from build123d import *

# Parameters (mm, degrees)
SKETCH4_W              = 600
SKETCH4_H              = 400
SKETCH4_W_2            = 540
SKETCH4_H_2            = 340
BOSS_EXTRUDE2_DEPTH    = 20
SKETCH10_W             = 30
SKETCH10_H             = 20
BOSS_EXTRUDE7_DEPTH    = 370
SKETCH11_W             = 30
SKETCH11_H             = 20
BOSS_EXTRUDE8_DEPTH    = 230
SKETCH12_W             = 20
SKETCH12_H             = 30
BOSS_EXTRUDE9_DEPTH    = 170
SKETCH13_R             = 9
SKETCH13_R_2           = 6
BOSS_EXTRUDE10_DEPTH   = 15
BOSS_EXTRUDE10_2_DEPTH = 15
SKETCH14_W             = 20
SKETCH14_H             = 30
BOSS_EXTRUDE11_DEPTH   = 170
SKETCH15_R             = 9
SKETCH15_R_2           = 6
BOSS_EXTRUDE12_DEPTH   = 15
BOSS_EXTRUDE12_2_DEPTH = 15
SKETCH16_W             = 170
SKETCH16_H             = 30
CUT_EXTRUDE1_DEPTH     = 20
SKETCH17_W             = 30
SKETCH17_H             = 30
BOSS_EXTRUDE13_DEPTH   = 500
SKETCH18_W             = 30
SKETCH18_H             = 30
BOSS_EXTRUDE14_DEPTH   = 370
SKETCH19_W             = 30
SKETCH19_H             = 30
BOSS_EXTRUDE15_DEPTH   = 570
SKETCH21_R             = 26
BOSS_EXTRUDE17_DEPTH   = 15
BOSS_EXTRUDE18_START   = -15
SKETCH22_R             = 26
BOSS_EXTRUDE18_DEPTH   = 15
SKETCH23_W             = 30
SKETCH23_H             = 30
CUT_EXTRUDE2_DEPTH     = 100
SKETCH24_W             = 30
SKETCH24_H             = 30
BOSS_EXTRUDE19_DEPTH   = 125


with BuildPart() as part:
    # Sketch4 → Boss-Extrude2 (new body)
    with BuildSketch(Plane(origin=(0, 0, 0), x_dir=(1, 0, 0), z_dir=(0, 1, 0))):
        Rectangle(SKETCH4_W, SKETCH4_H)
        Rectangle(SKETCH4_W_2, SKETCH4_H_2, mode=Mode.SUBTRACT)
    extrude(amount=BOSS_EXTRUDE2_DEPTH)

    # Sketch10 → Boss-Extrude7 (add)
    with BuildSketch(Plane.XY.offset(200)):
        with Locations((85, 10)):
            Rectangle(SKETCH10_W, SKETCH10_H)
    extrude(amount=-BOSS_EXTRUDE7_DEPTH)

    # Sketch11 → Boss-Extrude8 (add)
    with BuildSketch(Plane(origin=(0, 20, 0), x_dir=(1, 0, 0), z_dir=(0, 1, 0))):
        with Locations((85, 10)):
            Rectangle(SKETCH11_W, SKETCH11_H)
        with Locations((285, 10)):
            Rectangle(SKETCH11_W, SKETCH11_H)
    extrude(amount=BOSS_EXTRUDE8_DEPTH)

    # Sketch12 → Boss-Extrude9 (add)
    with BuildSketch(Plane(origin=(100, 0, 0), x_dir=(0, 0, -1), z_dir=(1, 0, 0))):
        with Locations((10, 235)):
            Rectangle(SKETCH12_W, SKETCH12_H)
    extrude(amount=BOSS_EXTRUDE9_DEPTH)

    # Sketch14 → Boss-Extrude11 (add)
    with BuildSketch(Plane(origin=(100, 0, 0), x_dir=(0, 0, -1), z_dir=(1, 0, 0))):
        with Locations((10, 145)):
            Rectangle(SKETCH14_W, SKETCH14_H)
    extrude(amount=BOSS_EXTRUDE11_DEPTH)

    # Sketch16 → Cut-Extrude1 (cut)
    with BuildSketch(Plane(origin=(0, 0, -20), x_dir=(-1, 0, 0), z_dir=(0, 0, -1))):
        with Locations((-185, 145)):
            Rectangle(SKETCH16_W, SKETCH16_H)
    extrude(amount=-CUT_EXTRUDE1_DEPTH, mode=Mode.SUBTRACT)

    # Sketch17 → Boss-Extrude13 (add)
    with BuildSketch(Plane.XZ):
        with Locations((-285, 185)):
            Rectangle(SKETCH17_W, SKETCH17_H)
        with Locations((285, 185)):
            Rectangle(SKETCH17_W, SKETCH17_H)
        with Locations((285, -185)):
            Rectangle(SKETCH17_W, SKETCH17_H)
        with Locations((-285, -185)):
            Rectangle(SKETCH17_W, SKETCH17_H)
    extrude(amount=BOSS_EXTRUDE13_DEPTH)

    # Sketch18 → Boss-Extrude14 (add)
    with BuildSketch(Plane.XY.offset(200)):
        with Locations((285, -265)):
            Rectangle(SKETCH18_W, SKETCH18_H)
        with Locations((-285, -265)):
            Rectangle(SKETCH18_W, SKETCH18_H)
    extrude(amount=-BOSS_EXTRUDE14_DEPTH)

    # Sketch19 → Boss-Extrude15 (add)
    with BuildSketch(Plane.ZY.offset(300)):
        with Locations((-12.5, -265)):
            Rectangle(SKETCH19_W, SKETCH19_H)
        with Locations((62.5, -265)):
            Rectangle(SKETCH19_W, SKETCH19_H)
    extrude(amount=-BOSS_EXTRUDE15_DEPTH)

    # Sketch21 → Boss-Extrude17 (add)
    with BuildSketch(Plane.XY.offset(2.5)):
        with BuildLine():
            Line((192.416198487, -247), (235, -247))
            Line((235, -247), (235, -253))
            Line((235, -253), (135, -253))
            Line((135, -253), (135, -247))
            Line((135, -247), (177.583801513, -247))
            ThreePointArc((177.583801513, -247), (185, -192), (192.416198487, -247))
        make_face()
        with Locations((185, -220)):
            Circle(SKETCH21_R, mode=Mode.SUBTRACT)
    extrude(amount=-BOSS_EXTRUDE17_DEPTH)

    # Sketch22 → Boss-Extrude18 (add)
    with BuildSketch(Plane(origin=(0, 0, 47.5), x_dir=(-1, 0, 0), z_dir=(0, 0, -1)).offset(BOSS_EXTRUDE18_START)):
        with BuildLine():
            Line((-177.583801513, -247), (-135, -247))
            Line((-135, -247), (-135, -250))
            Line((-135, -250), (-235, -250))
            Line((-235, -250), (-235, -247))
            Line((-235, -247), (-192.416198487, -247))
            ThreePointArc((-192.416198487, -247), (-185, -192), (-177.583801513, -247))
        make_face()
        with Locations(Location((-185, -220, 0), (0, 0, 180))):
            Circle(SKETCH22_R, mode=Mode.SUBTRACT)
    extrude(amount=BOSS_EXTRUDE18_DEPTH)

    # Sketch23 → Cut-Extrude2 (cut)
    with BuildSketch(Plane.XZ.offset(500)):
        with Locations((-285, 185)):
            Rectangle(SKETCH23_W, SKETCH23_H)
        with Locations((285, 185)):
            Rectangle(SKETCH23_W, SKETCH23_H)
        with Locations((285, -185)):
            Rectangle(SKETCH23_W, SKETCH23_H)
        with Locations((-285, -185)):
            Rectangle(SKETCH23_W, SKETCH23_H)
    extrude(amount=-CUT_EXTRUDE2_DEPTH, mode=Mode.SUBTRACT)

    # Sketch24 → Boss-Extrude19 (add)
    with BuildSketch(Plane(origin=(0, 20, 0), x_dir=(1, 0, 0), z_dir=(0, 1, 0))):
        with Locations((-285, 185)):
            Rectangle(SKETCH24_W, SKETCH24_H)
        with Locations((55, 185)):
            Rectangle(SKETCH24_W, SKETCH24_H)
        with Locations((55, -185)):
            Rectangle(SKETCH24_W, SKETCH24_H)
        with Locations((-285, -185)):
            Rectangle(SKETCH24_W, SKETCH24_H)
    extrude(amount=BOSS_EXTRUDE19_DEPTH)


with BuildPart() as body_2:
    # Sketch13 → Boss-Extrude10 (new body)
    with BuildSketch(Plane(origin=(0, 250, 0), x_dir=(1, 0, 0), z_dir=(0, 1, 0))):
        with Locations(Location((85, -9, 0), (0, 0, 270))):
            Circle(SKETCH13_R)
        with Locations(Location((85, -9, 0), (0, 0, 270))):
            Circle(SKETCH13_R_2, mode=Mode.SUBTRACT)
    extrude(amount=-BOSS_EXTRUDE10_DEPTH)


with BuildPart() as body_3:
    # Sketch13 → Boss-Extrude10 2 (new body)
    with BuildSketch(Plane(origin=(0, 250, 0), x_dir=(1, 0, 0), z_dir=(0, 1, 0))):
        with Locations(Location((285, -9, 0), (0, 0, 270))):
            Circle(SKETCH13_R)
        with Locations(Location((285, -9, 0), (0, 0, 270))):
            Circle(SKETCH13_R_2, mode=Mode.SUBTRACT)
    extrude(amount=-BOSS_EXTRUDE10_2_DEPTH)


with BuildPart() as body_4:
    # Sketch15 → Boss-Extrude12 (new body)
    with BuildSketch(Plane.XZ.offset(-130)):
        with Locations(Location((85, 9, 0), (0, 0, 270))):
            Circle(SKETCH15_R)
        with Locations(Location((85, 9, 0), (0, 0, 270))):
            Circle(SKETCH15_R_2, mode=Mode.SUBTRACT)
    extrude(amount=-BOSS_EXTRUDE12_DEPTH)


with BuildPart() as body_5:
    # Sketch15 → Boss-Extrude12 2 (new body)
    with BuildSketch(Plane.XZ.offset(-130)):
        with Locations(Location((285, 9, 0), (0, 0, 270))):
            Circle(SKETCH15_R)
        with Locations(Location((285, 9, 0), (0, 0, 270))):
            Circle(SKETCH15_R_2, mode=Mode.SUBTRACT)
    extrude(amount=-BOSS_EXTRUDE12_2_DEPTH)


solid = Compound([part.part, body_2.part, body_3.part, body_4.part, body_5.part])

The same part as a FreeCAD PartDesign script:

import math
import FreeCAD as App
import Part
import Sketcher
Q = App.Units.Quantity


def add_polygon(sketch, points):
    """Adds a closed chain of lines whose ends are joined by coincident constraints."""
    first, n = sketch.GeometryCount, len(points)
    for a, b in zip(points, points[1:] + points[:1]):
        sketch.addGeometry(Part.LineSegment(App.Vector(*a, 0), App.Vector(*b, 0)), False)
    for i in range(n):
        sketch.addConstraint(Sketcher.Constraint("Coincident", first + i, 2, first + (i + 1) % n, 1))

doc = App.newDocument("Part")
body = doc.addObject("PartDesign::Body", "Body")

# Sketch on XZ plane
sketch1 = body.newObject("Sketcher::SketchObject", "Sketch")
sketch1.AttachmentSupport = (doc.getObject("XZ_Plane"), [""])
sketch1.MapMode = "FlatFace"
add_polygon(sketch1, [(-300, -200), (-300, 200), (300, 200), (300, -200)])  # lines 0-3
add_polygon(sketch1, [(270, 170), (-270, 170), (-270, -170), (270, -170)])  # lines 4-7
sketch1.addConstraint([
    Sketcher.Constraint("Vertical", 0),
    Sketcher.Constraint("Horizontal", 1),
    Sketcher.Constraint("Vertical", 2),
    Sketcher.Constraint("Horizontal", 3),
    Sketcher.Constraint("Horizontal", 4),
    Sketcher.Constraint("Vertical", 5),
    Sketcher.Constraint("Horizontal", 6),
    Sketcher.Constraint("Vertical", 7),
    Sketcher.Constraint("Symmetric", 0, 2, 2, 2, -1, 1),
    Sketcher.Constraint("Symmetric", 4, 2, 6, 2, -1, 1),
    Sketcher.Constraint("DistanceX", 1, 1, 1, 2, Q("600 mm")),
    Sketcher.Constraint("DistanceX", 4, 2, 4, 1, Q("540 mm")),
    Sketcher.Constraint("DistanceY", 0, 1, 0, 2, Q("400 mm")),
    Sketcher.Constraint("DistanceY", 5, 2, 5, 1, Q("340 mm")),
])
pad1 = body.newObject("PartDesign::Pad", "Pad")
pad1.Profile = sketch1
pad1.Length = 20
pad1.Reversed = True

# Sketch on XY plane
sketch2 = body.newObject("Sketcher::SketchObject", "Sketch001")
sketch2.AttachmentSupport = (doc.getObject("XY_Plane"), [""])
sketch2.MapMode = "FlatFace"
sketch2.AttachmentOffset = App.Placement(App.Vector(0, 0, 200), App.Rotation())
add_polygon(sketch2, [(70, 20), (70, 0), (100, 0), (100, 20)])  # lines 0-3
sketch2.addConstraint([
    Sketcher.Constraint("Vertical", 0),
    Sketcher.Constraint("Horizontal", 1),
    Sketcher.Constraint("Vertical", 2),
    Sketcher.Constraint("Horizontal", 3),
    Sketcher.Constraint("PointOnObject", 0, 2, -1),
    Sketcher.Constraint("DistanceX", 1, 1, 1, 2, Q("30 mm")),
    Sketcher.Constraint("DistanceY", 0, 2, 0, 1, Q("20 mm")),
    Sketcher.Constraint("DistanceX", -1, 1, 0, 2, Q("70 mm")),
])
pad2 = body.newObject("PartDesign::Pad", "Pad001")
pad2.Profile = sketch2
pad2.Length = 370
pad2.Reversed = True

# Sketch on XZ plane
sketch3 = body.newObject("Sketcher::SketchObject", "Sketch002")
sketch3.AttachmentSupport = (doc.getObject("XZ_Plane"), [""])
sketch3.MapMode = "FlatFace"
sketch3.AttachmentOffset = App.Placement(App.Vector(0, 0, -20), App.Rotation())
add_polygon(sketch3, [(70, -20), (70, 0), (100, 0), (100, -20)])  # lines 0-3
add_polygon(sketch3, [(270, -20), (270, 0), (300, 0), (300, -20)])  # lines 4-7
sketch3.addConstraint([
    Sketcher.Constraint("Vertical", 0),
    Sketcher.Constraint("Horizontal", 1),
    Sketcher.Constraint("Vertical", 2),
    Sketcher.Constraint("Horizontal", 3),
    Sketcher.Constraint("Vertical", 4),
    Sketcher.Constraint("Horizontal", 5),
    Sketcher.Constraint("Vertical", 6),
    Sketcher.Constraint("Horizontal", 7),
    Sketcher.Constraint("PointOnObject", 0, 2, -1),
    Sketcher.Constraint("PointOnObject", 4, 2, -1),
    Sketcher.Constraint("Horizontal", 3, 2, 6, 2),
    Sketcher.Constraint("Equal", 3, 5),
    Sketcher.Constraint("DistanceX", 1, 1, 1, 2, Q("30 mm")),
    Sketcher.Constraint("DistanceY", 0, 1, 0, 2, Q("20 mm")),
    Sketcher.Constraint("DistanceX", -1, 1, 0, 2, Q("70 mm")),
    Sketcher.Constraint("DistanceX", -1, 1, 4, 2, Q("270 mm")),
])
pad3 = body.newObject("PartDesign::Pad", "Pad002")
pad3.Profile = sketch3
pad3.Length = 230
pad3.Reversed = True

# Sketch on YZ plane
sketch4 = body.newObject("Sketcher::SketchObject", "Sketch003")
sketch4.AttachmentSupport = (doc.getObject("YZ_Plane"), [""])
sketch4.MapMode = "FlatFace"
sketch4.AttachmentOffset = App.Placement(App.Vector(0, 0, 100), App.Rotation())
add_polygon(sketch4, [(250, 0), (220, 0), (220, -20), (250, -20)])  # lines 0-3
sketch4.addConstraint([
    Sketcher.Constraint("Horizontal", 0),
    Sketcher.Constraint("Vertical", 1),
    Sketcher.Constraint("Horizontal", 2),
    Sketcher.Constraint("Vertical", 3),
    Sketcher.Constraint("PointOnObject", 0, 2, -1),
    Sketcher.Constraint("DistanceX", 0, 2, 0, 1, Q("30 mm")),
    Sketcher.Constraint("DistanceY", 1, 2, 1, 1, Q("20 mm")),
    Sketcher.Constraint("DistanceX", -1, 1, 0, 2, Q("220 mm")),
])
pad4 = body.newObject("PartDesign::Pad", "Pad003")
pad4.Profile = sketch4
pad4.Length = 170

# Sketch on YZ plane
sketch5 = body.newObject("Sketcher::SketchObject", "Sketch004")
sketch5.AttachmentSupport = (doc.getObject("YZ_Plane"), [""])
sketch5.MapMode = "FlatFace"
sketch5.AttachmentOffset = App.Placement(App.Vector(0, 0, 100), App.Rotation())
add_polygon(sketch5, [(160, 0), (130, 0), (130, -20), (160, -20)])  # lines 0-3
sketch5.addConstraint([
    Sketcher.Constraint("Horizontal", 0),
    Sketcher.Constraint("Vertical", 1),
    Sketcher.Constraint("Horizontal", 2),
    Sketcher.Constraint("Vertical", 3),
    Sketcher.Constraint("PointOnObject", 0, 2, -1),
    Sketcher.Constraint("DistanceX", 0, 2, 0, 1, Q("30 mm")),
    Sketcher.Constraint("DistanceY", 1, 2, 1, 1, Q("20 mm")),
    Sketcher.Constraint("DistanceX", -1, 1, 0, 2, Q("130 mm")),
])
pad5 = body.newObject("PartDesign::Pad", "Pad004")
pad5.Profile = sketch5
pad5.Length = 170

# Sketch on XY plane
sketch6 = body.newObject("Sketcher::SketchObject", "Sketch005")
sketch6.AttachmentSupport = (doc.getObject("XY_Plane"), [""])
sketch6.MapMode = "FlatFace"
sketch6.AttachmentOffset = App.Placement(App.Vector(0, 0, -20), App.Rotation())
add_polygon(sketch6, [(270, 160), (270, 130), (100, 130), (100, 160)])  # lines 0-3
sketch6.addConstraint([
    Sketcher.Constraint("Vertical", 0),
    Sketcher.Constraint("Horizontal", 1),
    Sketcher.Constraint("Vertical", 2),
    Sketcher.Constraint("Horizontal", 3),
    Sketcher.Constraint("DistanceX", 1, 2, 1, 1, Q("170 mm")),
    Sketcher.Constraint("DistanceY", 0, 2, 0, 1, Q("30 mm")),
    Sketcher.Constraint("DistanceX", -1, 1, 0, 2, Q("270 mm")),
    Sketcher.Constraint("DistanceY", -1, 1, 0, 2, Q("130 mm")),
])
pocket1 = body.newObject("PartDesign::Pocket", "Pocket")
pocket1.Profile = sketch6
pocket1.Length = 20
pocket1.Reversed = True

# Sketch on XZ plane
sketch7 = body.newObject("Sketcher::SketchObject", "Sketch006")
sketch7.AttachmentSupport = (doc.getObject("XZ_Plane"), [""])
sketch7.MapMode = "FlatFace"
add_polygon(sketch7, [(-300, 200), (-300, 170), (-270, 170), (-270, 200)])  # lines 0-3
add_polygon(sketch7, [(270, 200), (270, 170), (300, 170), (300, 200)])  # lines 4-7
add_polygon(sketch7, [(270, -170), (270, -200), (300, -200), (300, -170)])  # lines 8-11
add_polygon(sketch7, [(-300, -170), (-300, -200), (-270, -200), (-270, -170)])  # lines 12-15
sketch7.addConstraint([
    Sketcher.Constraint("Vertical", 0),
    Sketcher.Constraint("Horizontal", 1),
    Sketcher.Constraint("Vertical", 2),
    Sketcher.Constraint("Horizontal", 3),
    Sketcher.Constraint("Vertical", 4),
    Sketcher.Constraint("Horizontal", 5),
    Sketcher.Constraint("Vertical", 6),
    Sketcher.Constraint("Horizontal", 7),
    Sketcher.Constraint("Vertical", 8),
    Sketcher.Constraint("Horizontal", 9),
    Sketcher.Constraint("Vertical", 10),
    Sketcher.Constraint("Horizontal", 11),
    Sketcher.Constraint("Vertical", 12),
    Sketcher.Constraint("Horizontal", 13),
    Sketcher.Constraint("Vertical", 14),
    Sketcher.Constraint("Horizontal", 15),
    Sketcher.Constraint("Symmetric", 2, 2, 8, 2, -1, 1),
    Sketcher.Constraint("Symmetric", 0, 2, 10, 2, -1, 1),
    Sketcher.Constraint("Symmetric", 6, 2, 12, 2, -1, 1),
    Sketcher.Constraint("Symmetric", 4, 2, 14, 2, -1, 1),
    Sketcher.Constraint("Symmetric", 1, 2, 4, 2, -2),
    Sketcher.Constraint("Symmetric", 3, 2, 6, 2, -2),
    Sketcher.Constraint("Equal", 15, 0),
    Sketcher.Constraint("DistanceX", 1, 1, 1, 2, Q("30 mm")),
    Sketcher.Constraint("DistanceX", 0, 2, -1, 1, Q("300 mm")),
    Sketcher.Constraint("DistanceY", -1, 1, 0, 2, Q("170 mm")),
])
pad6 = body.newObject("PartDesign::Pad", "Pad005")
pad6.Profile = sketch7
pad6.Length = 500

# Sketch on XY plane
sketch8 = body.newObject("Sketcher::SketchObject", "Sketch007")
sketch8.AttachmentSupport = (doc.getObject("XY_Plane"), [""])
sketch8.MapMode = "FlatFace"
sketch8.AttachmentOffset = App.Placement(App.Vector(0, 0, 200), App.Rotation())
add_polygon(sketch8, [(270, -250), (270, -280), (300, -280), (300, -250)])  # lines 0-3
add_polygon(sketch8, [(-300, -250), (-300, -280), (-270, -280), (-270, -250)])  # lines 4-7
sketch8.addConstraint([
    Sketcher.Constraint("Vertical", 0),
    Sketcher.Constraint("Horizontal", 1),
    Sketcher.Constraint("Vertical", 2),
    Sketcher.Constraint("Horizontal", 3),
    Sketcher.Constraint("Vertical", 4),
    Sketcher.Constraint("Horizontal", 5),
    Sketcher.Constraint("Vertical", 6),
    Sketcher.Constraint("Horizontal", 7),
    Sketcher.Constraint("Symmetric", 1, 2, 4, 2, -2),
    Sketcher.Constraint("Symmetric", 3, 2, 6, 2, -2),
    Sketcher.Constraint("Equal", 7, 0),
    Sketcher.Constraint("DistanceX", 1, 1, 1, 2, Q("30 mm")),
    Sketcher.Constraint("DistanceX", -1, 1, 0, 2, Q("270 mm")),
    Sketcher.Constraint("DistanceY", 0, 2, -1, 1, Q("280 mm")),
])
pad7 = body.newObject("PartDesign::Pad", "Pad006")
pad7.Profile = sketch8
pad7.Length = 370
pad7.Reversed = True

# Sketch on YZ plane
sketch9 = body.newObject("Sketcher::SketchObject", "Sketch008")
sketch9.AttachmentSupport = (doc.getObject("YZ_Plane"), [""])
sketch9.MapMode = "FlatFace"
sketch9.AttachmentOffset = App.Placement(App.Vector(0, 0, -300), App.Rotation())
add_polygon(sketch9, [(-250, -28), (-280, -28), (-280, 2), (-250, 2)])  # lines 0-3
add_polygon(sketch9, [(-250, 48), (-280, 48), (-280, 78), (-250, 78)])  # lines 4-7
sketch9.addConstraint([
    Sketcher.Constraint("Horizontal", 0),
    Sketcher.Constraint("Vertical", 1),
    Sketcher.Constraint("Horizontal", 2),
    Sketcher.Constraint("Vertical", 3),
    Sketcher.Constraint("Horizontal", 4),
    Sketcher.Constraint("Vertical", 5),
    Sketcher.Constraint("Horizontal", 6),
    Sketcher.Constraint("Vertical", 7),
    Sketcher.Constraint("Vertical", 1, 2, 4, 2),
    Sketcher.Constraint("Vertical", 3, 2, 6, 2),
    Sketcher.Constraint("Equal", 6, 1),
    Sketcher.Constraint("Equal", 3, 5),
    Sketcher.Constraint("DistanceX", 0, 2, 0, 1, Q("30 mm")),
    Sketcher.Constraint("DistanceX", 0, 2, -1, 1, Q("280 mm")),
    Sketcher.Constraint("DistanceY", 1, 2, 4, 2, Q("45 mm")),
    Sketcher.Constraint("DistanceY", 0, 2, -1, 1, Q("27.5 mm")),
])
pad8 = body.newObject("PartDesign::Pad", "Pad007")
pad8.Profile = sketch9
pad8.Length = 570

# Sketch on XY plane
sketch10 = body.newObject("Sketcher::SketchObject", "Sketch009")
sketch10.AttachmentSupport = (doc.getObject("XY_Plane"), [""])
sketch10.MapMode = "FlatFace"
sketch10.AttachmentOffset = App.Placement(App.Vector(0, 0, 2.5), App.Rotation())
sketch10.addGeometry([
    Part.LineSegment(App.Vector(235, -247, 0), App.Vector(192, -247, 0)),  # 0
    Part.ArcOfCircle(Part.Circle(App.Vector(185, -220, 0), App.Vector(0, 0, 1), 28), math.radians(-75), math.radians(255)),  # 1
    Part.LineSegment(App.Vector(178, -247, 0), App.Vector(135, -247, 0)),  # 2
    Part.LineSegment(App.Vector(135, -247, 0), App.Vector(135, -253, 0)),  # 3
    Part.LineSegment(App.Vector(135, -253, 0), App.Vector(235, -253, 0)),  # 4
    Part.LineSegment(App.Vector(235, -253, 0), App.Vector(235, -247, 0)),  # 5
    Part.Circle(App.Vector(185, -220, 0), App.Vector(0, 0, 1), 26),  # 6
], False)
sketch10.addConstraint([
    Sketcher.Constraint("Coincident", 0, 2, 1, 1),
    Sketcher.Constraint("Coincident", 1, 2, 2, 1),
    Sketcher.Constraint("Coincident", 2, 2, 3, 1),
    Sketcher.Constraint("Coincident", 3, 2, 4, 1),
    Sketcher.Constraint("Coincident", 4, 2, 5, 1),
    Sketcher.Constraint("Coincident", 5, 2, 0, 1),
    Sketcher.Constraint("Horizontal", 0),
    Sketcher.Constraint("Horizontal", 2),
    Sketcher.Constraint("Vertical", 3),
    Sketcher.Constraint("Horizontal", 4),
    Sketcher.Constraint("Vertical", 5),
    Sketcher.Constraint("Coincident", 6, 3, 1, 3),
    Sketcher.Constraint("Horizontal", 0, 2, 1, 2),
    Sketcher.Constraint("Equal", 0, 2),
    Sketcher.Constraint("Diameter", 6, Q("52 mm")),
    Sketcher.Constraint("Radius", 1, Q("28 mm")),
    Sketcher.Constraint("DistanceX", 4, 1, 4, 2, Q("100 mm")),
    Sketcher.Constraint("DistanceY", 3, 2, 3, 1, Q("6 mm")),
    Sketcher.Constraint("DistanceX", -1, 1, 1, 3, Q("185 mm")),
    Sketcher.Constraint("DistanceY", 1, 3, -1, 1, Q("220 mm")),
    Sketcher.Constraint("DistanceY", 0, 2, -1, 1, Q("247 mm")),
])
pad9 = body.newObject("PartDesign::Pad", "Pad008")
pad9.Profile = sketch10
pad9.Length = 15
pad9.Reversed = True

# Sketch on XY plane
sketch11 = body.newObject("Sketcher::SketchObject", "Sketch010")
sketch11.AttachmentSupport = (doc.getObject("XY_Plane"), [""])
sketch11.MapMode = "FlatFace"
sketch11.AttachmentOffset = App.Placement(App.Vector(0, 0, 62.5), App.Rotation())
sketch11.addGeometry([
    Part.LineSegment(App.Vector(135, -247, 0), App.Vector(177.6, -247, 0)),  # 0
    Part.ArcOfCircle(Part.Circle(App.Vector(185, -220, 0), App.Vector(0, 0, 1), 28), math.radians(-75), math.radians(255)),  # 1
    Part.LineSegment(App.Vector(192.4, -247, 0), App.Vector(235, -247, 0)),  # 2
    Part.LineSegment(App.Vector(235, -247, 0), App.Vector(235, -250, 0)),  # 3
    Part.LineSegment(App.Vector(235, -250, 0), App.Vector(135, -250, 0)),  # 4
    Part.LineSegment(App.Vector(135, -250, 0), App.Vector(135, -247, 0)),  # 5
    Part.Circle(App.Vector(185, -220, 0), App.Vector(0, 0, 1), 26),  # 6
], False)
sketch11.addConstraint([
    Sketcher.Constraint("Coincident", 0, 2, 1, 2),
    Sketcher.Constraint("Coincident", 1, 1, 2, 1),
    Sketcher.Constraint("Coincident", 2, 2, 3, 1),
    Sketcher.Constraint("Coincident", 3, 2, 4, 1),
    Sketcher.Constraint("Coincident", 4, 2, 5, 1),
    Sketcher.Constraint("Coincident", 5, 2, 0, 1),
    Sketcher.Constraint("Horizontal", 0),
    Sketcher.Constraint("Horizontal", 2),
    Sketcher.Constraint("Vertical", 3),
    Sketcher.Constraint("Horizontal", 4),
    Sketcher.Constraint("Vertical", 5),
    Sketcher.Constraint("Coincident", 6, 3, 1, 3),
    Sketcher.Constraint("Horizontal", 0, 2, 1, 1),
    Sketcher.Constraint("Equal", 0, 2),
    Sketcher.Constraint("Diameter", 6, Q("52 mm")),
    Sketcher.Constraint("Radius", 1, Q("28 mm")),
    Sketcher.Constraint("DistanceX", 4, 2, 4, 1, Q("100 mm")),
    Sketcher.Constraint("DistanceY", 3, 2, 3, 1, Q("3 mm")),
    Sketcher.Constraint("DistanceX", -1, 1, 1, 3, Q("185 mm")),
    Sketcher.Constraint("DistanceY", 1, 3, -1, 1, Q("220 mm")),
    Sketcher.Constraint("DistanceY", 0, 2, -1, 1, Q("247 mm")),
])
pad10 = body.newObject("PartDesign::Pad", "Pad009")
pad10.Profile = sketch11
pad10.Length = 15
pad10.Reversed = True

# Sketch on XZ plane
sketch12 = body.newObject("Sketcher::SketchObject", "Sketch011")
sketch12.AttachmentSupport = (doc.getObject("XZ_Plane"), [""])
sketch12.MapMode = "FlatFace"
sketch12.AttachmentOffset = App.Placement(App.Vector(0, 0, 500), App.Rotation())
add_polygon(sketch12, [(-300, 200), (-300, 170), (-270, 170), (-270, 200)])  # lines 0-3
add_polygon(sketch12, [(270, 200), (270, 170), (300, 170), (300, 200)])  # lines 4-7
add_polygon(sketch12, [(270, -170), (270, -200), (300, -200), (300, -170)])  # lines 8-11
add_polygon(sketch12, [(-300, -170), (-300, -200), (-270, -200), (-270, -170)])  # lines 12-15
sketch12.addConstraint([
    Sketcher.Constraint("Vertical", 0),
    Sketcher.Constraint("Horizontal", 1),
    Sketcher.Constraint("Vertical", 2),
    Sketcher.Constraint("Horizontal", 3),
    Sketcher.Constraint("Vertical", 4),
    Sketcher.Constraint("Horizontal", 5),
    Sketcher.Constraint("Vertical", 6),
    Sketcher.Constraint("Horizontal", 7),
    Sketcher.Constraint("Vertical", 8),
    Sketcher.Constraint("Horizontal", 9),
    Sketcher.Constraint("Vertical", 10),
    Sketcher.Constraint("Horizontal", 11),
    Sketcher.Constraint("Vertical", 12),
    Sketcher.Constraint("Horizontal", 13),
    Sketcher.Constraint("Vertical", 14),
    Sketcher.Constraint("Horizontal", 15),
    Sketcher.Constraint("Symmetric", 2, 2, 8, 2, -1, 1),
    Sketcher.Constraint("Symmetric", 0, 2, 10, 2, -1, 1),
    Sketcher.Constraint("Symmetric", 6, 2, 12, 2, -1, 1),
    Sketcher.Constraint("Symmetric", 4, 2, 14, 2, -1, 1),
    Sketcher.Constraint("Symmetric", 1, 2, 4, 2, -2),
    Sketcher.Constraint("Symmetric", 3, 2, 6, 2, -2),
    Sketcher.Constraint("Equal", 15, 0),
    Sketcher.Constraint("DistanceX", 1, 1, 1, 2, Q("30 mm")),
    Sketcher.Constraint("DistanceX", 0, 2, -1, 1, Q("300 mm")),
    Sketcher.Constraint("DistanceY", -1, 1, 0, 2, Q("170 mm")),
])
pocket2 = body.newObject("PartDesign::Pocket", "Pocket001")
pocket2.Profile = sketch12
pocket2.Length = 100

# Sketch on XZ plane
sketch13 = body.newObject("Sketcher::SketchObject", "Sketch012")
sketch13.AttachmentSupport = (doc.getObject("XZ_Plane"), [""])
sketch13.MapMode = "FlatFace"
sketch13.AttachmentOffset = App.Placement(App.Vector(0, 0, -20), App.Rotation())
add_polygon(sketch13, [(-300, -200), (-300, -170), (-270, -170), (-270, -200)])  # lines 0-3
add_polygon(sketch13, [(40, -200), (40, -170), (70, -170), (70, -200)])  # lines 4-7
add_polygon(sketch13, [(40, 170), (40, 200), (70, 200), (70, 170)])  # lines 8-11
add_polygon(sketch13, [(-300, 170), (-300, 200), (-270, 200), (-270, 170)])  # lines 12-15
sketch13.addConstraint([
    Sketcher.Constraint("Vertical", 0),
    Sketcher.Constraint("Horizontal", 1),
    Sketcher.Constraint("Vertical", 2),
    Sketcher.Constraint("Horizontal", 3),
    Sketcher.Constraint("Vertical", 4),
    Sketcher.Constraint("Horizontal", 5),
    Sketcher.Constraint("Vertical", 6),
    Sketcher.Constraint("Horizontal", 7),
    Sketcher.Constraint("Vertical", 8),
    Sketcher.Constraint("Horizontal", 9),
    Sketcher.Constraint("Vertical", 10),
    Sketcher.Constraint("Horizontal", 11),
    Sketcher.Constraint("Vertical", 12),
    Sketcher.Constraint("Horizontal", 13),
    Sketcher.Constraint("Vertical", 14),
    Sketcher.Constraint("Horizontal", 15),
    Sketcher.Constraint("Symmetric", 7, 2, 8, 2, -1),
    Sketcher.Constraint("Symmetric", 5, 2, 10, 2, -1),
    Sketcher.Constraint("Symmetric", 3, 2, 12, 2, -1),
    Sketcher.Constraint("Symmetric", 1, 2, 14, 2, -1),
    Sketcher.Constraint("Horizontal", 1, 2, 4, 2),
    Sketcher.Constraint("Horizontal", 3, 2, 6, 2),
    Sketcher.Constraint("Equal", 3, 5),
    Sketcher.Constraint("Equal", 15, 0),
    Sketcher.Constraint("DistanceX", 1, 1, 1, 2, Q("30 mm")),
    Sketcher.Constraint("DistanceX", 0, 2, -1, 1, Q("300 mm")),
    Sketcher.Constraint("DistanceY", 0, 2, -1, 1, Q("170 mm")),
    Sketcher.Constraint("DistanceX", -1, 1, 4, 2, Q("40 mm")),
])
pad11 = body.newObject("PartDesign::Pad", "Pad010")
pad11.Profile = sketch13
pad11.Length = 125
pad11.Reversed = True
body2 = doc.addObject("PartDesign::Body", "Body001")

# Sketch on XZ plane
sketch14 = body2.newObject("Sketcher::SketchObject", "Sketch013")
sketch14.AttachmentSupport = (doc.getObject("XZ_Plane001"), [""])
sketch14.MapMode = "FlatFace"
sketch14.AttachmentOffset = App.Placement(App.Vector(0, 0, -250), App.Rotation())
sketch14.addGeometry([
    Part.Circle(App.Vector(85, 9, 0), App.Vector(0, 0, 1), 9),
    Part.Circle(App.Vector(85, 9, 0), App.Vector(0, 0, 1), 6),
], False)
sketch14.addConstraint([
    Sketcher.Constraint("Coincident", 1, 3, 0, 3),
    Sketcher.Constraint("Diameter", 0, Q("18 mm")),
    Sketcher.Constraint("Diameter", 1, Q("12 mm")),
    Sketcher.Constraint("DistanceX", -1, 1, 0, 3, Q("85 mm")),
    Sketcher.Constraint("DistanceY", -1, 1, 0, 3, Q("9 mm")),
])
pad12 = body2.newObject("PartDesign::Pad", "Pad011")
pad12.Profile = sketch14
pad12.Length = 15
body3 = doc.addObject("PartDesign::Body", "Body002")

# Sketch on XZ plane
sketch15 = body3.newObject("Sketcher::SketchObject", "Sketch014")
sketch15.AttachmentSupport = (doc.getObject("XZ_Plane002"), [""])
sketch15.MapMode = "FlatFace"
sketch15.AttachmentOffset = App.Placement(App.Vector(0, 0, -250), App.Rotation())
sketch15.addGeometry([
    Part.Circle(App.Vector(285, 9, 0), App.Vector(0, 0, 1), 9),
    Part.Circle(App.Vector(285, 9, 0), App.Vector(0, 0, 1), 6),
], False)
sketch15.addConstraint([
    Sketcher.Constraint("Coincident", 1, 3, 0, 3),
    Sketcher.Constraint("Diameter", 0, Q("18 mm")),
    Sketcher.Constraint("Diameter", 1, Q("12 mm")),
    Sketcher.Constraint("DistanceX", -1, 1, 0, 3, Q("285 mm")),
    Sketcher.Constraint("DistanceY", -1, 1, 0, 3, Q("9 mm")),
])
pad13 = body3.newObject("PartDesign::Pad", "Pad012")
pad13.Profile = sketch15
pad13.Length = 15
body4 = doc.addObject("PartDesign::Body", "Body003")

# Sketch on XZ plane
sketch16 = body4.newObject("Sketcher::SketchObject", "Sketch015")
sketch16.AttachmentSupport = (doc.getObject("XZ_Plane003"), [""])
sketch16.MapMode = "FlatFace"
sketch16.AttachmentOffset = App.Placement(App.Vector(0, 0, -130), App.Rotation())
sketch16.addGeometry([
    Part.Circle(App.Vector(85, 9, 0), App.Vector(0, 0, 1), 9),
    Part.Circle(App.Vector(85, 9, 0), App.Vector(0, 0, 1), 6),
], False)
sketch16.addConstraint([
    Sketcher.Constraint("Coincident", 1, 3, 0, 3),
    Sketcher.Constraint("Diameter", 0, Q("18 mm")),
    Sketcher.Constraint("Diameter", 1, Q("12 mm")),
    Sketcher.Constraint("DistanceX", -1, 1, 0, 3, Q("85 mm")),
    Sketcher.Constraint("DistanceY", -1, 1, 0, 3, Q("9 mm")),
])
pad14 = body4.newObject("PartDesign::Pad", "Pad013")
pad14.Profile = sketch16
pad14.Length = 15
pad14.Reversed = True
body5 = doc.addObject("PartDesign::Body", "Body004")

# Sketch on XZ plane
sketch17 = body5.newObject("Sketcher::SketchObject", "Sketch016")
sketch17.AttachmentSupport = (doc.getObject("XZ_Plane004"), [""])
sketch17.MapMode = "FlatFace"
sketch17.AttachmentOffset = App.Placement(App.Vector(0, 0, -130), App.Rotation())
sketch17.addGeometry([
    Part.Circle(App.Vector(285, 9, 0), App.Vector(0, 0, 1), 9),
    Part.Circle(App.Vector(285, 9, 0), App.Vector(0, 0, 1), 6),
], False)
sketch17.addConstraint([
    Sketcher.Constraint("Coincident", 1, 3, 0, 3),
    Sketcher.Constraint("Diameter", 0, Q("18 mm")),
    Sketcher.Constraint("Diameter", 1, Q("12 mm")),
    Sketcher.Constraint("DistanceX", -1, 1, 0, 3, Q("285 mm")),
    Sketcher.Constraint("DistanceY", -1, 1, 0, 3, Q("9 mm")),
])
pad15 = body5.newObject("PartDesign::Pad", "Pad014")
pad15.Profile = sketch17
pad15.Length = 15
pad15.Reversed = True

doc.recompute()
